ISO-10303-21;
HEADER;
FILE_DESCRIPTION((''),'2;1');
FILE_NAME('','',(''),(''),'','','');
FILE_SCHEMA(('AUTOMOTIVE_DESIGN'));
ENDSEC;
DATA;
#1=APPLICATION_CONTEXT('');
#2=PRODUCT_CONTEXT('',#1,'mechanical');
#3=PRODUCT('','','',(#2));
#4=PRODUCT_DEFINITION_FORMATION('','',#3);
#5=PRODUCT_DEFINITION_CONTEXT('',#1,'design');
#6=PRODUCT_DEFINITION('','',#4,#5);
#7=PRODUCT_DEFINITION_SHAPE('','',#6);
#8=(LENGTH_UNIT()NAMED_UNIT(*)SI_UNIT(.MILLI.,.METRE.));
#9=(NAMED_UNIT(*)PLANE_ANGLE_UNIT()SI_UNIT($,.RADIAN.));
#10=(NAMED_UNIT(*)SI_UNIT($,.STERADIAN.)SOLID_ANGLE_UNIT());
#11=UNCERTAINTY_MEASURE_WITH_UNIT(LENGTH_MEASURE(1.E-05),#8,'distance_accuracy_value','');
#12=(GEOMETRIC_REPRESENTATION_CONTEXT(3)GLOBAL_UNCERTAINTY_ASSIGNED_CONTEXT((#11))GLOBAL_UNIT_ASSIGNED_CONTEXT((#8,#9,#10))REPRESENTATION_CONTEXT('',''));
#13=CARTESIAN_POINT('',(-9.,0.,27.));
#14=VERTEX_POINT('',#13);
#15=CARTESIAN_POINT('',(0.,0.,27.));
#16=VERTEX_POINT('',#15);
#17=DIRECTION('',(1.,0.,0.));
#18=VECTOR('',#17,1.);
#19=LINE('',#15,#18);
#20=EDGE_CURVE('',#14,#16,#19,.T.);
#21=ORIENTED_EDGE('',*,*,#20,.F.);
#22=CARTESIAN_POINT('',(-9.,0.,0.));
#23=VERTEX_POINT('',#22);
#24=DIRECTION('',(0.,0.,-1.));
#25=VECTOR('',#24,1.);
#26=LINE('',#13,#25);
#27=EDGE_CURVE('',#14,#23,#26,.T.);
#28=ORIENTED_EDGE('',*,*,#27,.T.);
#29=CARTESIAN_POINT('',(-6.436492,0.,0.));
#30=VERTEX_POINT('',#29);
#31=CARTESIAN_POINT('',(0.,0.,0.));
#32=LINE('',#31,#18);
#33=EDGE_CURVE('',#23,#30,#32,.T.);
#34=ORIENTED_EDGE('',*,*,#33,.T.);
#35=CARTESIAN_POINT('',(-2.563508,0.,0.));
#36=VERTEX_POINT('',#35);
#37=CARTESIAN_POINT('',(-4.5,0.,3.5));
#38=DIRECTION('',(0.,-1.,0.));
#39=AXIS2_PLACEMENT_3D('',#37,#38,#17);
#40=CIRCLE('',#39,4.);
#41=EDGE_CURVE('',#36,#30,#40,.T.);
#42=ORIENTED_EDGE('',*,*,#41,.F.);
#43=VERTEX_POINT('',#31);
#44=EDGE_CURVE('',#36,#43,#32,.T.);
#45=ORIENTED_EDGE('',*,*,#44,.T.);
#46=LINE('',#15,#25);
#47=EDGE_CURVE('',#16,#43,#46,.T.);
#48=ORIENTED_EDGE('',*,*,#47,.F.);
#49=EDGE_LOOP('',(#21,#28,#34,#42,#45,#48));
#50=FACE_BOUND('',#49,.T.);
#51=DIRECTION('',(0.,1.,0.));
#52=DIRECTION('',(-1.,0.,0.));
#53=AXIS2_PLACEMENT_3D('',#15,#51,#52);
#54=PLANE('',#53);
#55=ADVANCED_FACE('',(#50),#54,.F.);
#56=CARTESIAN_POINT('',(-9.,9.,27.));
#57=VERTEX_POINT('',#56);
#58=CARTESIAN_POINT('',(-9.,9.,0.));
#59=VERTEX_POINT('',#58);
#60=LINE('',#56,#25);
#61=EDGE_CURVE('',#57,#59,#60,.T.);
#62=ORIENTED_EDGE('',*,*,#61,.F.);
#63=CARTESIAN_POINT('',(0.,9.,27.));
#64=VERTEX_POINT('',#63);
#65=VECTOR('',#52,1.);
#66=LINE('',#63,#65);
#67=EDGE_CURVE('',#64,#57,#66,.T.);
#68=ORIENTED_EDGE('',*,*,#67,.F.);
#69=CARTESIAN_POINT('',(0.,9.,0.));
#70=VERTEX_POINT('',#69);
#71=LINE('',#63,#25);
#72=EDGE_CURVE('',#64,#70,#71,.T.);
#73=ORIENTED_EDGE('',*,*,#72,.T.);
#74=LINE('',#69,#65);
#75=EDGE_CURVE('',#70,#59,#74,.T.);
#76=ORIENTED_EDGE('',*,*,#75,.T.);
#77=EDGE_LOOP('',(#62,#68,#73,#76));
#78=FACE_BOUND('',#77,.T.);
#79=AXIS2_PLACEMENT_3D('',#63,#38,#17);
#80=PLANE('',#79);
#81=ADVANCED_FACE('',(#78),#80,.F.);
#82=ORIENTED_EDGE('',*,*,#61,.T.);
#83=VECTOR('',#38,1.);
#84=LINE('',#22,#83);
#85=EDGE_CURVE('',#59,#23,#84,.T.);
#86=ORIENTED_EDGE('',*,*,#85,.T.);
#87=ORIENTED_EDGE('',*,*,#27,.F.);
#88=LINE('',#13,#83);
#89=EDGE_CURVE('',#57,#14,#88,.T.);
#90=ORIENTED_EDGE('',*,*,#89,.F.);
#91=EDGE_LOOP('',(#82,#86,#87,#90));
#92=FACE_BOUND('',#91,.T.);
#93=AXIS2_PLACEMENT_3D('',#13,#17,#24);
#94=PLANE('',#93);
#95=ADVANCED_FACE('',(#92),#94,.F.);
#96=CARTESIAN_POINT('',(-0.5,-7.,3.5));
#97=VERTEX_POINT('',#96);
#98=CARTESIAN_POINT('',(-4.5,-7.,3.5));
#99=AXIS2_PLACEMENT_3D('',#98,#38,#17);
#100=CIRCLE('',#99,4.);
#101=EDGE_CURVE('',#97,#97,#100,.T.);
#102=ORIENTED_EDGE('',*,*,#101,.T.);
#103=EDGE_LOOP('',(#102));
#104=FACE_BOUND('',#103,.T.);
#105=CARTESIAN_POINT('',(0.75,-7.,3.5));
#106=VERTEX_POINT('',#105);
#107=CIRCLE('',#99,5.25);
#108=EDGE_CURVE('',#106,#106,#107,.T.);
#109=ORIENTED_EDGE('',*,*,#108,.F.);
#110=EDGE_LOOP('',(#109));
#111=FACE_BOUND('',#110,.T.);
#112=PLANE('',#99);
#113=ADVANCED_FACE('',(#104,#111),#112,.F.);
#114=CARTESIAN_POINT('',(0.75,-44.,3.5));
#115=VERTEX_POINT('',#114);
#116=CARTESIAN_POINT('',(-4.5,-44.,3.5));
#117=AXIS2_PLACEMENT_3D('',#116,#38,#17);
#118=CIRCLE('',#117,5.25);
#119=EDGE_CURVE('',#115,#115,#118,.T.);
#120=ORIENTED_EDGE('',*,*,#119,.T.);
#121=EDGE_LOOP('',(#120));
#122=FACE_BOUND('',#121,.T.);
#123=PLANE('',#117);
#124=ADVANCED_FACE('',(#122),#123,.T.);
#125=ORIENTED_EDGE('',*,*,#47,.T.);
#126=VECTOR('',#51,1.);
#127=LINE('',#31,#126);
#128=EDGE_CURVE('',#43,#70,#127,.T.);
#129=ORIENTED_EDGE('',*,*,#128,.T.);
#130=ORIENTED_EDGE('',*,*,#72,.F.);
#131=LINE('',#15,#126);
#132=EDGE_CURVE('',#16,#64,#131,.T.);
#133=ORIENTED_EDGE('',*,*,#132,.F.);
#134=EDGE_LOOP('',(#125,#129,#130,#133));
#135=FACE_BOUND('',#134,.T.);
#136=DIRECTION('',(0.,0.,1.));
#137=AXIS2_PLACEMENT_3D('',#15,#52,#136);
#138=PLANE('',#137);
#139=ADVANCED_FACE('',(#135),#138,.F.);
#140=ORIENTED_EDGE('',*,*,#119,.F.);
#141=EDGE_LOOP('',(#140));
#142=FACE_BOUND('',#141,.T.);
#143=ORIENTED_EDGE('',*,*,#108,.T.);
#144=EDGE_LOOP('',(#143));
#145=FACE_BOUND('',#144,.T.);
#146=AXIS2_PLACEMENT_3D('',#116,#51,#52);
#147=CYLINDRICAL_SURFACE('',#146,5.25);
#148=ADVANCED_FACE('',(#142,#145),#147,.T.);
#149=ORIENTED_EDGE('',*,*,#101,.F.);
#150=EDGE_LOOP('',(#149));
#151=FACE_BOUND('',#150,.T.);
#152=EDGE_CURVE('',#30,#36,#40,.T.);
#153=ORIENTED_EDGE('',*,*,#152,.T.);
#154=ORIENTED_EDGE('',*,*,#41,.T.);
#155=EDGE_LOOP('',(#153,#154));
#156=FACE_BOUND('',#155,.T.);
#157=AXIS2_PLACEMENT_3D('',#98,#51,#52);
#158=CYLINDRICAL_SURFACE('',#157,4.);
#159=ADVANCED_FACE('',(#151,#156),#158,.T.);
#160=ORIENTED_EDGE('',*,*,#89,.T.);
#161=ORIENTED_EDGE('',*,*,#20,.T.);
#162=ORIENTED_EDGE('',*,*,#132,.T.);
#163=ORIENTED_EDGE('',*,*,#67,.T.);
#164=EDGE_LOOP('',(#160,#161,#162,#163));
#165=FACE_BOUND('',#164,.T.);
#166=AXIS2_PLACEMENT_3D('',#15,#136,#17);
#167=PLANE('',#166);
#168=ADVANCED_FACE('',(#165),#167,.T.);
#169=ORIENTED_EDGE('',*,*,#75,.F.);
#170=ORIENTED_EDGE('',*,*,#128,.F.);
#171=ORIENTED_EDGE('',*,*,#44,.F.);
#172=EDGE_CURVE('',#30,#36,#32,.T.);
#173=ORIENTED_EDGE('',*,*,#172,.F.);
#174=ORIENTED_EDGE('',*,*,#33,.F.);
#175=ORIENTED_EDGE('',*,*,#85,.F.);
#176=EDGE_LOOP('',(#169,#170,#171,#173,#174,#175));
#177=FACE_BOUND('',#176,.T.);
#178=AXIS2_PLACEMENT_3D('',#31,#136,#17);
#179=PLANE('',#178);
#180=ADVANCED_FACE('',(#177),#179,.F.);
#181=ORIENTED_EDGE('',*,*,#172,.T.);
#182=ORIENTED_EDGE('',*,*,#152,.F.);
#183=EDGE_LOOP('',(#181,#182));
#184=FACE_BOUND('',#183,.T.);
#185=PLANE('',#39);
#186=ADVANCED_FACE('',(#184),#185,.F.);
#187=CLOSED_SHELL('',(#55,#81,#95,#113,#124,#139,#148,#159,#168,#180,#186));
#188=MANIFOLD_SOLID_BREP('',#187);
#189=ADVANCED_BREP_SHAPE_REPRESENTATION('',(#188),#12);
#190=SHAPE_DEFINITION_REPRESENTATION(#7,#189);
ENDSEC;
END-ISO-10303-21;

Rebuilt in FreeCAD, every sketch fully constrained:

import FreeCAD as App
import Part
import Sketcher

doc = App.newDocument("Part")
body = doc.addObject("PartDesign::Body", "Body")

# Sketch on XY plane
sketch1 = body.newObject("Sketcher::SketchObject", "Sketch")
sketch1.AttachmentSupport = (doc.getObject("XY_Plane"), [""])
sketch1.MapMode = "FlatFace"
sketch1.addGeometry(Part.LineSegment(App.Vector(-9, 9, 0), App.Vector(-9, 0, 0)), False)
sketch1.addGeometry(Part.LineSegment(App.Vector(-9, 0, 0), App.Vector(0, 0, 0)), False)
sketch1.addGeometry(Part.LineSegment(App.Vector(0, 0, 0), App.Vector(0, 9, 0)), False)
sketch1.addGeometry(Part.LineSegment(App.Vector(0, 9, 0), App.Vector(-9, 9, 0)), False)
sketch1.addConstraint(Sketcher.Constraint("Coincident", 0, 2, 1, 1))
sketch1.addConstraint(Sketcher.Constraint("Coincident", 1, 2, 2, 1))
sketch1.addConstraint(Sketcher.Constraint("Coincident", 2, 2, 3, 1))
sketch1.addConstraint(Sketcher.Constraint("Coincident", 3, 2, 0, 1))
sketch1.addConstraint(Sketcher.Constraint("Vertical", 0))
sketch1.addConstraint(Sketcher.Constraint("Horizontal", 1))
sketch1.addConstraint(Sketcher.Constraint("Vertical", 2))
sketch1.addConstraint(Sketcher.Constraint("Horizontal", 3))
sketch1.addConstraint(Sketcher.Constraint("Coincident", 1, 2, -1, 1))
sketch1.addConstraint(Sketcher.Constraint("Equal", 3, 0))
sketch1.addConstraint(Sketcher.Constraint("DistanceX", 1, 1, 1, 2, 9.0))
pad1 = body.newObject("PartDesign::Pad", "Pad")
pad1.Profile = sketch1
pad1.Length = 27

# Sketch on XZ plane
sketch2 = body.newObject("Sketcher::SketchObject", "Sketch001")
sketch2.AttachmentSupport = (doc.getObject("XZ_Plane"), [""])
sketch2.MapMode = "FlatFace"
sketch2.addGeometry(Part.Circle(App.Vector(-4.5, 3.5, 0), App.Vector(0, 0, 1), 4), False)
sketch2.addConstraint(Sketcher.Constraint("Diameter", 0, 8.0))
sketch2.addConstraint(Sketcher.Constraint("DistanceX", 0, 3, -1, 1, 4.5))
sketch2.addConstraint(Sketcher.Constraint("DistanceY", -1, 1, 0, 3, 3.5))
pad2 = body.newObject("PartDesign::Pad", "Pad001")
pad2.Profile = sketch2
pad2.Length = 7

# Sketch on XZ plane
sketch3 = body.newObject("Sketcher::SketchObject", "Sketch002")
sketch3.AttachmentSupport = (doc.getObject("XZ_Plane"), [""])
sketch3.MapMode = "FlatFace"
sketch3.AttachmentOffset = App.Placement(App.Vector(0, 0, 7), App.Rotation())
sketch3.addGeometry(Part.Circle(App.Vector(-4.5, 3.5, 0), App.Vector(0, 0, 1), 5.25), False)
sketch3.addConstraint(Sketcher.Constraint("Diameter", 0, 10.5))
sketch3.addConstraint(Sketcher.Constraint("DistanceX", 0, 3, -1, 1, 4.5))
sketch3.addConstraint(Sketcher.Constraint("DistanceY", -1, 1, 0, 3, 3.5))
pad3 = body.newObject("PartDesign::Pad", "Pad002")
pad3.Profile = sketch3
pad3.Length = 37

doc.recompute()
